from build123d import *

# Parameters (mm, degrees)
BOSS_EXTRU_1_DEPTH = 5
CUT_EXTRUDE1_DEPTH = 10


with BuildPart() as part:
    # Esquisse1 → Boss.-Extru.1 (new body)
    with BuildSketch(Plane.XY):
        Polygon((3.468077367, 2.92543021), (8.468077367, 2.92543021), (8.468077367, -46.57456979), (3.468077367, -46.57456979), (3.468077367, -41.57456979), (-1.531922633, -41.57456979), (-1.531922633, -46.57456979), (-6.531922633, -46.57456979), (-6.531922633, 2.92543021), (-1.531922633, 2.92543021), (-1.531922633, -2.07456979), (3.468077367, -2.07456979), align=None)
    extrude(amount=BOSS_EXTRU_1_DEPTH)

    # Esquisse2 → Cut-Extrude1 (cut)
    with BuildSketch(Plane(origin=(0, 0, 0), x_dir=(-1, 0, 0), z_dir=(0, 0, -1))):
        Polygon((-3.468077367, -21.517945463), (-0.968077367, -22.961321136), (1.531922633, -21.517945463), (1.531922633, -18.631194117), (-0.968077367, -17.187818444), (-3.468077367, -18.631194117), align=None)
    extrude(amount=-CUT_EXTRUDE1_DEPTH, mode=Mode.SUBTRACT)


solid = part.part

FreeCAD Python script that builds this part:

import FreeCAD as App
import Part
import Sketcher

V = App.Vector
Q = App.Units.Quantity


def add_polygon(sketch, points):
    """Adds a closed chain of lines whose ends are joined by coincident constraints."""
    first, n = sketch.GeometryCount, len(points)
    for a, b in zip(points, points[1:] + points[:1]):
        sketch.addGeometry(Part.LineSegment(App.Vector(*a, 0), App.Vector(*b, 0)), False)
    for i in range(n):
        sketch.addConstraint(Sketcher.Constraint("Coincident", first + i, 2, first + (i + 1) % n, 1))

doc = App.newDocument("Part")
body = doc.addObject("PartDesign::Body", "Body")

# Sketch on XY plane
sketch1 = doc.addObject("Sketcher::SketchObject", "Sketch")
body.addObject(sketch1)
sketch1.AttachmentSupport = (doc.XY_Plane, [""])
sketch1.MapMode = "FlatFace"
add_polygon(sketch1, [(8, 3), (3, 3), (3, -2), (-2, -2), (-2, 3), (-7, 3), (-7, -47), (-2, -47), (-2, -42), (3, -42), (3, -47), (8, -47)])  # lines 0-11
sketch1.addConstraint([
    Sketcher.Constraint("Horizontal", 0),
    Sketcher.Constraint("Vertical", 1),
    Sketcher.Constraint("Horizontal", 2),
    Sketcher.Constraint("Vertical", 3),
    Sketcher.Constraint("Horizontal", 4),
    Sketcher.Constraint("Vertical", 5),
    Sketcher.Constraint("Horizontal", 6),
    Sketcher.Constraint("Vertical", 7),
    Sketcher.Constraint("Horizontal", 8),
    Sketcher.Constraint("Vertical", 9),
    Sketcher.Constraint("Horizontal", 10),
    Sketcher.Constraint("Vertical", 11),
    Sketcher.Constraint("Horizontal", 0, 2, 3, 2),
    Sketcher.Constraint("Horizontal", 6, 2, 9, 2),
    Sketcher.Constraint("Vertical", 3, 2, 6, 2),
    Sketcher.Constraint("Vertical", 1, 2, 8, 2),
    Sketcher.Constraint("Equal", 0, 2),
    Sketcher.Constraint("Equal", 2, 4),
    Sketcher.Constraint("Equal", 10, 1),
    Sketcher.Constraint("Equal", 3, 7),
    Sketcher.Constraint("DistanceX", 0, 2, 0, 1, 5.0),
    Sketcher.Constraint("DistanceY", 5, 2, 5, 1, 49.5),
    Sketcher.Constraint("DistanceY", -1, 1, 0, 2, 2.92543),
    Sketcher.Constraint("DistanceX", -1, 1, 0, 2, 3.468077),
])
pad1 = doc.addObject("PartDesign::Pad", "Pad")
body.addObject(pad1)
pad1.Profile = sketch1
pad1.Length = 5

# Sketch on XY plane
sketch2 = doc.addObject("Sketcher::SketchObject", "Sketch001")
body.addObject(sketch2)
sketch2.AttachmentSupport = (doc.XY_Plane, [""])
sketch2.MapMode = "FlatFace"
add_polygon(sketch2, [(3.5, -21.5), (1, -23), (-1.5, -21.5), (-1.5, -18.6), (1, -17.2), (3.5, -18.6)])  # lines 0-5
sketch2.addConstraint([
    Sketcher.Constraint("Vertical", 2),
    Sketcher.Constraint("Vertical", 5),
    Sketcher.Constraint("Parallel", 0, 3),
    Sketcher.Constraint("Parallel", 1, 4),
    Sketcher.Constraint("Horizontal", 2, 2, 4, 2),
    Sketcher.Constraint("Horizontal", 1, 2, 5, 2),
    Sketcher.Constraint("Vertical", 0, 2, 3, 2),
    Sketcher.Constraint("Angle", 0, Q("-150 deg")),
    Sketcher.Constraint("DistanceX", 2, 2, 4, 2, 5.0),
    Sketcher.Constraint("DistanceY", 2, 1, 2, 2, 2.886751),
    Sketcher.Constraint("DistanceY", 0, 2, -1, 1, 22.961321),
    Sketcher.Constraint("DistanceX", -1, 1, 0, 2, 0.968077),
])
pocket1 = doc.addObject("PartDesign::Pocket", "Pocket")
body.addObject(pocket1)
pocket1.Profile = sketch2
pocket1.Length = 10
pocket1.Reversed = True

doc.recompute()
